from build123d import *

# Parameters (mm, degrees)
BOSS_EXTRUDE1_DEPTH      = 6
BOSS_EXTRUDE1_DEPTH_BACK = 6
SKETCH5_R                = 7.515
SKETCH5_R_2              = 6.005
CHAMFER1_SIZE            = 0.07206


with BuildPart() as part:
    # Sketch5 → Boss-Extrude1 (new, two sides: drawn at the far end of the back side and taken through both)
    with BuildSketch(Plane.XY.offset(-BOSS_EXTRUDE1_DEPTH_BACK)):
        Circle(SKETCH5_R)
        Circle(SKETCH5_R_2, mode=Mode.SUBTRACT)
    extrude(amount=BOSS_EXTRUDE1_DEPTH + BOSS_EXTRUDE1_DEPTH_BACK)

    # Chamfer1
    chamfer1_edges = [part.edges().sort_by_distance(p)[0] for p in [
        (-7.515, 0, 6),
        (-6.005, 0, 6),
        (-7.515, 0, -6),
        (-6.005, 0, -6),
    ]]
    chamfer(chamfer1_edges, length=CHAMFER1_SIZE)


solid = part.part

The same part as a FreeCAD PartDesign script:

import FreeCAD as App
import Part
import Sketcher

V = App.Vector


def edges_at(feature, points):
    """Names of the edges that pass closest to the given points."""
    edges = feature.Shape.Edges
    near = lambda p: min(range(len(edges)), key=lambda i: edges[i].distToShape(Part.Vertex(*p))[0])
    return sorted({f"Edge{near(p) + 1}" for p in points})

doc = App.newDocument("Part")
body = doc.addObject("PartDesign::Body", "Body")

# Sketch on XY plane
sketch1 = doc.addObject("Sketcher::SketchObject", "Sketch")
body.addObject(sketch1)
sketch1.AttachmentSupport = (doc.XY_Plane, [""])
sketch1.MapMode = "FlatFace"
sketch1.addGeometry([
    Part.Circle(V(0, 0, 0), V(0, 0, 1), 8),
    Part.Circle(V(0, 0, 0), V(0, 0, 1), 6),
], False)
sketch1.addConstraint([
    Sketcher.Constraint("Coincident", 0, 3, -1, 1),
    Sketcher.Constraint("Coincident", 1, 3, -1, 1),
    Sketcher.Constraint("Diameter", 0, 15.03),
    Sketcher.Constraint("Diameter", 1, 12.01),
])
pad1 = doc.addObject("PartDesign::Pad", "Pad")
body.addObject(pad1)
pad1.Profile = sketch1
pad1.Type = "TwoLengths"
pad1.Length = 6
pad1.Length2 = 6
doc.recompute()

chamfer = doc.addObject("PartDesign::Chamfer", "Chamfer")
body.addObject(chamfer)
chamfer.Base = (pad1, edges_at(pad1, [
    (-7.515, 0, 6),
    (-6.005, 0, 6),
    (-7.515, 0, -6),
    (-6.005, 0, -6),
]))
chamfer.Size = 0.07206

doc.recompute()
